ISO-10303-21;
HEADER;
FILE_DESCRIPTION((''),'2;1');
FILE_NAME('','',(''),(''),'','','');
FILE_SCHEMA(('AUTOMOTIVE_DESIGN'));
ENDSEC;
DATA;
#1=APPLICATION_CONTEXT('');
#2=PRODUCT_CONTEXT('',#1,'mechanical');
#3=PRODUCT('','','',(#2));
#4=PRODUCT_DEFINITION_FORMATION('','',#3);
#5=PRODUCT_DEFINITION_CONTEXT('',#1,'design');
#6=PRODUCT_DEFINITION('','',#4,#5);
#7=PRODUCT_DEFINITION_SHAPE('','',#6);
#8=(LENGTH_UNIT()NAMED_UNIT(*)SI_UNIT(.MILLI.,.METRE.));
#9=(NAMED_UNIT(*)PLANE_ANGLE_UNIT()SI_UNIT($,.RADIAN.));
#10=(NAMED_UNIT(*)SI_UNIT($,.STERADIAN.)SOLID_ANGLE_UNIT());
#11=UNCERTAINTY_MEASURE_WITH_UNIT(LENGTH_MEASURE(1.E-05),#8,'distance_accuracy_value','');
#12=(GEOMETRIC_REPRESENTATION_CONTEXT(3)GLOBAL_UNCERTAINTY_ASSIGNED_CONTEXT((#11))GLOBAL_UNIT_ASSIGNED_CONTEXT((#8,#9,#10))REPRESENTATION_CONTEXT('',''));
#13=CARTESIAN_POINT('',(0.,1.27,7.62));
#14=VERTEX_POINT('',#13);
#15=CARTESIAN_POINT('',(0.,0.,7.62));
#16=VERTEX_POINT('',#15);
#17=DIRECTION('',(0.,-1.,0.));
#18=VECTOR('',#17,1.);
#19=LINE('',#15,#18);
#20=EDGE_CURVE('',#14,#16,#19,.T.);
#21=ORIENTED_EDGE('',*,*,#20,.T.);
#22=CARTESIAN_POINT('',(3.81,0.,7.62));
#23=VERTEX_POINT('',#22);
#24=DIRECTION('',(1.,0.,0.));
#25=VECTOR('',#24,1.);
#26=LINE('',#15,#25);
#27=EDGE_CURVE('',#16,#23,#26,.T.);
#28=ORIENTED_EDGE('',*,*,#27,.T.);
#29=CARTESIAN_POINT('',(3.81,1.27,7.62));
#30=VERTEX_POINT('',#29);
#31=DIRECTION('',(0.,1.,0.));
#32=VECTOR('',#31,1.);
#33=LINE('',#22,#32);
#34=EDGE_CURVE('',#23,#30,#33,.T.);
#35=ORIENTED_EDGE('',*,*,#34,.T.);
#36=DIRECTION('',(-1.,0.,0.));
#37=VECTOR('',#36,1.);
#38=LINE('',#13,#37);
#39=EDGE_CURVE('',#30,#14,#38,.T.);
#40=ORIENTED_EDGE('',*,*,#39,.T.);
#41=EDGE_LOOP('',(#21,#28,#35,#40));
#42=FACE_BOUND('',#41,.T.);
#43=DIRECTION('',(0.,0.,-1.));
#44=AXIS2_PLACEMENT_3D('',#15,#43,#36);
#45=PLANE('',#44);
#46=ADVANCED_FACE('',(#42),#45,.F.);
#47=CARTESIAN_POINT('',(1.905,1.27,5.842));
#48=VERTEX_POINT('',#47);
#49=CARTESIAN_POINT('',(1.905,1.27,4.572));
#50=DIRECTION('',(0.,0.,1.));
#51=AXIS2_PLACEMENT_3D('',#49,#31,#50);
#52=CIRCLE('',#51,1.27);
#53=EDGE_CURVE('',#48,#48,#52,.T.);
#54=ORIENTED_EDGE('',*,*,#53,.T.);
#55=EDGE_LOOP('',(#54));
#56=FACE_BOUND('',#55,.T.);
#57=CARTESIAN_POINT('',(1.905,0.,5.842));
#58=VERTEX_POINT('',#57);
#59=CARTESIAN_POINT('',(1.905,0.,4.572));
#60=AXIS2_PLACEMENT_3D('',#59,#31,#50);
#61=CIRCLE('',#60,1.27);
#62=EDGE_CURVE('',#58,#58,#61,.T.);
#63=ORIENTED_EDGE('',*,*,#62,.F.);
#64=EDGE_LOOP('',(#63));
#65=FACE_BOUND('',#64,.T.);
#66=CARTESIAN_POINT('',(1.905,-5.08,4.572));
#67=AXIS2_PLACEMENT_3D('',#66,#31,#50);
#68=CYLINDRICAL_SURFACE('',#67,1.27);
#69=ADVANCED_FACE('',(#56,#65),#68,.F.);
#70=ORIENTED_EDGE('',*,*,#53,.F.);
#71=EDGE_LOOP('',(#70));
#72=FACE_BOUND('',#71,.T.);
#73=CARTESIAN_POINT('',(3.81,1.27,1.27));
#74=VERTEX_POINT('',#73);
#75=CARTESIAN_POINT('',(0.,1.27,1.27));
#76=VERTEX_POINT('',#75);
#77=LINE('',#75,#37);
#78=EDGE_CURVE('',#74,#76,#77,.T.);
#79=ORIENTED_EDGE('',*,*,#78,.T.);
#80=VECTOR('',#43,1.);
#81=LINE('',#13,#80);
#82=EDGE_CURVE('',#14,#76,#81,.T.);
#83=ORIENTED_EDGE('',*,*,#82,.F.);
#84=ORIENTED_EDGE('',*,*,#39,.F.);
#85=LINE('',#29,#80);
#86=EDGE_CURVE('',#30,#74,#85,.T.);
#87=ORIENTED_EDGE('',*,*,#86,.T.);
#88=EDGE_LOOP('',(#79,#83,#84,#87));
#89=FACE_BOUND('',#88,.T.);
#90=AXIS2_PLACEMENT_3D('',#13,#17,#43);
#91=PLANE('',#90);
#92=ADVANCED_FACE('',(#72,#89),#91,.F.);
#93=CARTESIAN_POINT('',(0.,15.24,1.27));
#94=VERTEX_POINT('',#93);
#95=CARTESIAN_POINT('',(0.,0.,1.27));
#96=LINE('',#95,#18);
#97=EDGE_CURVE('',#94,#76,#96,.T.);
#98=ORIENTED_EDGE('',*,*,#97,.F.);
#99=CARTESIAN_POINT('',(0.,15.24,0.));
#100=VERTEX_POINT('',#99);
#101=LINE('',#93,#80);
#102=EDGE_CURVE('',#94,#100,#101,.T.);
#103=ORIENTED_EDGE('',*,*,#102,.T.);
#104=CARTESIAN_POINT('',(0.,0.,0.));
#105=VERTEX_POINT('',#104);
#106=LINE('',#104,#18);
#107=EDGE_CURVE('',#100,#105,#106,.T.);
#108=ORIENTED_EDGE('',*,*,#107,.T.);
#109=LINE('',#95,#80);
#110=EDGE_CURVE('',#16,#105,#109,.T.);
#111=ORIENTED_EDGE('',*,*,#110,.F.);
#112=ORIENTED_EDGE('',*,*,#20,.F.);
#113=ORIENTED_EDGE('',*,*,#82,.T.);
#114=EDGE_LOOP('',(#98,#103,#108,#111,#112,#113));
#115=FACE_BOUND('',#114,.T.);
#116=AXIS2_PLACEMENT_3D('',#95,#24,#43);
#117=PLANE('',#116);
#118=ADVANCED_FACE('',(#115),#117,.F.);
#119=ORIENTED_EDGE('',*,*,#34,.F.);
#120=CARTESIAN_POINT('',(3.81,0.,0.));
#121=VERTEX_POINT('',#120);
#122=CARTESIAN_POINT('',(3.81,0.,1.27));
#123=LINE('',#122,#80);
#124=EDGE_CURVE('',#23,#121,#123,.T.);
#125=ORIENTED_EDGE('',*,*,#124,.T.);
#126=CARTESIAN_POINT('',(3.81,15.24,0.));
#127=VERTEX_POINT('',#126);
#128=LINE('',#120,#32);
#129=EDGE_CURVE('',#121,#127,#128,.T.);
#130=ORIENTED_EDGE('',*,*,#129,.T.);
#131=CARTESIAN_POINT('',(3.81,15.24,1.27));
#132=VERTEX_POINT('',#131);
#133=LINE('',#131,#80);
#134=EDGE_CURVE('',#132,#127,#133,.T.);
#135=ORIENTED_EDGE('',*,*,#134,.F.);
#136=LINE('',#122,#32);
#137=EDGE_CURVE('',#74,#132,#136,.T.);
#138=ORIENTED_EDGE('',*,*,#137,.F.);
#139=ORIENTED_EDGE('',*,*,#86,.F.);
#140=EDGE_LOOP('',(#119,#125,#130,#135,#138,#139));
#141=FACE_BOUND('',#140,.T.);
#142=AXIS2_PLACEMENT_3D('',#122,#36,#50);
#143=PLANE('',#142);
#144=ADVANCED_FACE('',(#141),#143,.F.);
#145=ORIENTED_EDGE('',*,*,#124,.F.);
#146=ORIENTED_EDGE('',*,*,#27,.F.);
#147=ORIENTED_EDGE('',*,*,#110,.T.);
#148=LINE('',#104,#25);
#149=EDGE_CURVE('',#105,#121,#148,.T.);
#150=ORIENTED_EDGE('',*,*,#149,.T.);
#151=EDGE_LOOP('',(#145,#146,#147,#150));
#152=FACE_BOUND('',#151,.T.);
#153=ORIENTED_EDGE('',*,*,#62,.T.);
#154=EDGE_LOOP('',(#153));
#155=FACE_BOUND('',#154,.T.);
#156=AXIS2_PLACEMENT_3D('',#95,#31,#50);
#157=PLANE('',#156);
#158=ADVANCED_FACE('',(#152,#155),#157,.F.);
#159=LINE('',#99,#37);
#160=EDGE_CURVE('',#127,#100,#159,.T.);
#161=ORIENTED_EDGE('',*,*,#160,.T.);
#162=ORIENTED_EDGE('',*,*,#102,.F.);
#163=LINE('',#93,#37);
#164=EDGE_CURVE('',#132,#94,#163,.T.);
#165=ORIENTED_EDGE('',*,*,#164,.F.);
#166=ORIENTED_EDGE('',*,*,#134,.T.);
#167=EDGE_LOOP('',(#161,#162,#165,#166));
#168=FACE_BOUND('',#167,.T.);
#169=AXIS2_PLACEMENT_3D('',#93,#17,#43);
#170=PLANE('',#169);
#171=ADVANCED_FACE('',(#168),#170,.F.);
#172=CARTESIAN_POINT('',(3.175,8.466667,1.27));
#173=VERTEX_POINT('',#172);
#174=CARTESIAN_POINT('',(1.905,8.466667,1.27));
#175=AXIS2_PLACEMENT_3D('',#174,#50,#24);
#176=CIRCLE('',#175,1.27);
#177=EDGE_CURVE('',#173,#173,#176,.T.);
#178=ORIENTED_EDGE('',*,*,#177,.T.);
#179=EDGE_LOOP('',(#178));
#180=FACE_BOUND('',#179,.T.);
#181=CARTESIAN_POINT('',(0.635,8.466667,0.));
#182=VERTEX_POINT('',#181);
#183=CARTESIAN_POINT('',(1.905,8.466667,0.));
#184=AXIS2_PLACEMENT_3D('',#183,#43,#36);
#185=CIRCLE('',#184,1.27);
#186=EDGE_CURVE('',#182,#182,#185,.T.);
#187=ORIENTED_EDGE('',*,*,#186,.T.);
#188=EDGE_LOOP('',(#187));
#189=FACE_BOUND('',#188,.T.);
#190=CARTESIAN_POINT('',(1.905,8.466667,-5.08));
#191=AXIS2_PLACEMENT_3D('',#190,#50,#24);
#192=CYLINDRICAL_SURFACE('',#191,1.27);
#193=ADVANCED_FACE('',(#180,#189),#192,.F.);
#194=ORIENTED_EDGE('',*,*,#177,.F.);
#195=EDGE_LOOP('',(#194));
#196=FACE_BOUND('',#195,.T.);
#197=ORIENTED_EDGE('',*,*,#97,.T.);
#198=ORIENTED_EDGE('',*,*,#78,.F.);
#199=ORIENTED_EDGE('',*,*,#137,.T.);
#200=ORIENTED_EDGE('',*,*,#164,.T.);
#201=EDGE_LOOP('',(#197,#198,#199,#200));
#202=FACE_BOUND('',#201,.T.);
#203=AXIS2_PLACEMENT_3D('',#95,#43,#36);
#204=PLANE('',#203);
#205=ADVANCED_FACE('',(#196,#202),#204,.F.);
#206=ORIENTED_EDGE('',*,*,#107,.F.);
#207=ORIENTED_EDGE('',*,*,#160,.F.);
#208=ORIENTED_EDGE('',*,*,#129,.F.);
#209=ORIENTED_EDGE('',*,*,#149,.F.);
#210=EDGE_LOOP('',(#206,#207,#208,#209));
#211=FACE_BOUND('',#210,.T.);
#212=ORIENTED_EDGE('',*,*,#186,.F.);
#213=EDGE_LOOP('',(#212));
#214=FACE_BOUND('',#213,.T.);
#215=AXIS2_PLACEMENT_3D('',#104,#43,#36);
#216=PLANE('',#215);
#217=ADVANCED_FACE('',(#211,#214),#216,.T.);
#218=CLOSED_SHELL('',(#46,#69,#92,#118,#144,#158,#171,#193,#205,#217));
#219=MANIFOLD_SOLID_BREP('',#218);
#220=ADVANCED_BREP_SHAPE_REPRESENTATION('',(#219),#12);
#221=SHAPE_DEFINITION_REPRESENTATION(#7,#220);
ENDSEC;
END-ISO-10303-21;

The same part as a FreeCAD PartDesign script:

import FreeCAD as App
import Part
import Sketcher
Q = App.Units.Quantity


def add_polygon(sketch, points):
    """Adds a closed chain of lines whose ends are joined by coincident constraints."""
    first, n = sketch.GeometryCount, len(points)
    for a, b in zip(points, points[1:] + points[:1]):
        sketch.addGeometry(Part.LineSegment(App.Vector(*a, 0), App.Vector(*b, 0)), False)
    for i in range(n):
        sketch.addConstraint(Sketcher.Constraint("Coincident", first + i, 2, first + (i + 1) % n, 1))

doc = App.newDocument("Part")
body = doc.addObject("PartDesign::Body", "Body")

sketch1 = doc.addObject("Sketcher::SketchObject", "Sketch")
body.addObject(sketch1)
sketch1.AttachmentSupport = (doc.XY_Plane, [""])
sketch1.MapMode = "FlatFace"
add_polygon(sketch1, [(0, 15.24), (0, 0), (3.81, 0), (3.81, 15.24)])
sketch1.addConstraint([
    Sketcher.Constraint("Vertical", 0),
    Sketcher.Constraint("Horizontal", 1),
    Sketcher.Constraint("Vertical", 2),
    Sketcher.Constraint("Horizontal", 3),
    Sketcher.Constraint("Coincident", 0, 2, -1, 1),
    Sketcher.Constraint("DistanceY", 0, 2, 0, 1, Q("0.6 in")),
    Sketcher.Constraint("DistanceX", 1, 1, 1, 2, Q("0.15 in")),
])
pad1 = doc.addObject("PartDesign::Pad", "Pad")
body.addObject(pad1)
pad1.Profile = sketch1
pad1.Length = Q("0.05 in")

sketch2 = doc.addObject("Sketcher::SketchObject", "Sketch001")
body.addObject(sketch2)
sketch2.AttachmentSupport = (doc.XY_Plane, [""])
sketch2.MapMode = "FlatFace"
sketch2.AttachmentOffset = App.Placement(App.Vector(0, 0, 0.05 * 25.4), App.Rotation())
add_polygon(sketch2, [(0, 1.27), (0, 0), (3.81, 0), (3.81, 1.27)])
sketch2.addConstraint([
    Sketcher.Constraint("Vertical", 0),
    Sketcher.Constraint("Horizontal", 1),
    Sketcher.Constraint("Vertical", 2),
    Sketcher.Constraint("Horizontal", 3),
    Sketcher.Constraint("Coincident", 0, 2, -1, 1),
    Sketcher.Constraint("DistanceX", 1, 1, 1, 2, Q("0.15 in")),
    Sketcher.Constraint("DistanceY", 0, 2, 0, 1, Q("0.05 in")),
])
pad2 = doc.addObject("PartDesign::Pad", "Pad001")
body.addObject(pad2)
pad2.Profile = sketch2
pad2.Length = Q("0.25 in")

sketch3 = doc.addObject("Sketcher::SketchObject", "Sketch002")
body.addObject(sketch3)
sketch3.AttachmentSupport = (doc.XZ_Plane, [""])
sketch3.MapMode = "FlatFace"
sketch3.AttachmentOffset = App.Placement(App.Vector(0, 0, -0.05 * 25.4), App.Rotation())
sketch3.addGeometry(Part.Circle(App.Vector(1.905, 4.572, 0), App.Vector(0, 0, 1), 1.27), False)
sketch3.addConstraint([
    Sketcher.Constraint("Diameter", 0, Q("0.1 in")),
    Sketcher.Constraint("DistanceY", -1, 1, 0, 3, Q("0.18 in")),
    Sketcher.Constraint("DistanceX", -1, 1, 0, 3, Q("0.075 in")),
])
pocket1 = doc.addObject("PartDesign::Pocket", "Pocket")
body.addObject(pocket1)
pocket1.Profile = sketch3
pocket1.Length = Q("0.25 in")
pocket1.Reversed = True

sketch4 = doc.addObject("Sketcher::SketchObject", "Sketch003")
body.addObject(sketch4)
sketch4.AttachmentSupport = (doc.XY_Plane, [""])
sketch4.MapMode = "FlatFace"
sketch4.AttachmentOffset = App.Placement(App.Vector(0, 0, 0.05 * 25.4), App.Rotation())
sketch4.addGeometry(Part.Circle(App.Vector(1.905, 8.466667, 0), App.Vector(0, 0, 1), 1.27), False)
sketch4.addConstraint([
    Sketcher.Constraint("Diameter", 0, Q("0.1 in")),
    Sketcher.Constraint("DistanceX", -1, 1, 0, 3, Q("0.075 in")),
    Sketcher.Constraint("DistanceY", -1, 1, 0, 3, Q("8.466667 mm")),
])
pocket2 = doc.addObject("PartDesign::Pocket", "Pocket001")
body.addObject(pocket2)
pocket2.Profile = sketch4
pocket2.Length = Q("0.25 in")

doc.recompute()
